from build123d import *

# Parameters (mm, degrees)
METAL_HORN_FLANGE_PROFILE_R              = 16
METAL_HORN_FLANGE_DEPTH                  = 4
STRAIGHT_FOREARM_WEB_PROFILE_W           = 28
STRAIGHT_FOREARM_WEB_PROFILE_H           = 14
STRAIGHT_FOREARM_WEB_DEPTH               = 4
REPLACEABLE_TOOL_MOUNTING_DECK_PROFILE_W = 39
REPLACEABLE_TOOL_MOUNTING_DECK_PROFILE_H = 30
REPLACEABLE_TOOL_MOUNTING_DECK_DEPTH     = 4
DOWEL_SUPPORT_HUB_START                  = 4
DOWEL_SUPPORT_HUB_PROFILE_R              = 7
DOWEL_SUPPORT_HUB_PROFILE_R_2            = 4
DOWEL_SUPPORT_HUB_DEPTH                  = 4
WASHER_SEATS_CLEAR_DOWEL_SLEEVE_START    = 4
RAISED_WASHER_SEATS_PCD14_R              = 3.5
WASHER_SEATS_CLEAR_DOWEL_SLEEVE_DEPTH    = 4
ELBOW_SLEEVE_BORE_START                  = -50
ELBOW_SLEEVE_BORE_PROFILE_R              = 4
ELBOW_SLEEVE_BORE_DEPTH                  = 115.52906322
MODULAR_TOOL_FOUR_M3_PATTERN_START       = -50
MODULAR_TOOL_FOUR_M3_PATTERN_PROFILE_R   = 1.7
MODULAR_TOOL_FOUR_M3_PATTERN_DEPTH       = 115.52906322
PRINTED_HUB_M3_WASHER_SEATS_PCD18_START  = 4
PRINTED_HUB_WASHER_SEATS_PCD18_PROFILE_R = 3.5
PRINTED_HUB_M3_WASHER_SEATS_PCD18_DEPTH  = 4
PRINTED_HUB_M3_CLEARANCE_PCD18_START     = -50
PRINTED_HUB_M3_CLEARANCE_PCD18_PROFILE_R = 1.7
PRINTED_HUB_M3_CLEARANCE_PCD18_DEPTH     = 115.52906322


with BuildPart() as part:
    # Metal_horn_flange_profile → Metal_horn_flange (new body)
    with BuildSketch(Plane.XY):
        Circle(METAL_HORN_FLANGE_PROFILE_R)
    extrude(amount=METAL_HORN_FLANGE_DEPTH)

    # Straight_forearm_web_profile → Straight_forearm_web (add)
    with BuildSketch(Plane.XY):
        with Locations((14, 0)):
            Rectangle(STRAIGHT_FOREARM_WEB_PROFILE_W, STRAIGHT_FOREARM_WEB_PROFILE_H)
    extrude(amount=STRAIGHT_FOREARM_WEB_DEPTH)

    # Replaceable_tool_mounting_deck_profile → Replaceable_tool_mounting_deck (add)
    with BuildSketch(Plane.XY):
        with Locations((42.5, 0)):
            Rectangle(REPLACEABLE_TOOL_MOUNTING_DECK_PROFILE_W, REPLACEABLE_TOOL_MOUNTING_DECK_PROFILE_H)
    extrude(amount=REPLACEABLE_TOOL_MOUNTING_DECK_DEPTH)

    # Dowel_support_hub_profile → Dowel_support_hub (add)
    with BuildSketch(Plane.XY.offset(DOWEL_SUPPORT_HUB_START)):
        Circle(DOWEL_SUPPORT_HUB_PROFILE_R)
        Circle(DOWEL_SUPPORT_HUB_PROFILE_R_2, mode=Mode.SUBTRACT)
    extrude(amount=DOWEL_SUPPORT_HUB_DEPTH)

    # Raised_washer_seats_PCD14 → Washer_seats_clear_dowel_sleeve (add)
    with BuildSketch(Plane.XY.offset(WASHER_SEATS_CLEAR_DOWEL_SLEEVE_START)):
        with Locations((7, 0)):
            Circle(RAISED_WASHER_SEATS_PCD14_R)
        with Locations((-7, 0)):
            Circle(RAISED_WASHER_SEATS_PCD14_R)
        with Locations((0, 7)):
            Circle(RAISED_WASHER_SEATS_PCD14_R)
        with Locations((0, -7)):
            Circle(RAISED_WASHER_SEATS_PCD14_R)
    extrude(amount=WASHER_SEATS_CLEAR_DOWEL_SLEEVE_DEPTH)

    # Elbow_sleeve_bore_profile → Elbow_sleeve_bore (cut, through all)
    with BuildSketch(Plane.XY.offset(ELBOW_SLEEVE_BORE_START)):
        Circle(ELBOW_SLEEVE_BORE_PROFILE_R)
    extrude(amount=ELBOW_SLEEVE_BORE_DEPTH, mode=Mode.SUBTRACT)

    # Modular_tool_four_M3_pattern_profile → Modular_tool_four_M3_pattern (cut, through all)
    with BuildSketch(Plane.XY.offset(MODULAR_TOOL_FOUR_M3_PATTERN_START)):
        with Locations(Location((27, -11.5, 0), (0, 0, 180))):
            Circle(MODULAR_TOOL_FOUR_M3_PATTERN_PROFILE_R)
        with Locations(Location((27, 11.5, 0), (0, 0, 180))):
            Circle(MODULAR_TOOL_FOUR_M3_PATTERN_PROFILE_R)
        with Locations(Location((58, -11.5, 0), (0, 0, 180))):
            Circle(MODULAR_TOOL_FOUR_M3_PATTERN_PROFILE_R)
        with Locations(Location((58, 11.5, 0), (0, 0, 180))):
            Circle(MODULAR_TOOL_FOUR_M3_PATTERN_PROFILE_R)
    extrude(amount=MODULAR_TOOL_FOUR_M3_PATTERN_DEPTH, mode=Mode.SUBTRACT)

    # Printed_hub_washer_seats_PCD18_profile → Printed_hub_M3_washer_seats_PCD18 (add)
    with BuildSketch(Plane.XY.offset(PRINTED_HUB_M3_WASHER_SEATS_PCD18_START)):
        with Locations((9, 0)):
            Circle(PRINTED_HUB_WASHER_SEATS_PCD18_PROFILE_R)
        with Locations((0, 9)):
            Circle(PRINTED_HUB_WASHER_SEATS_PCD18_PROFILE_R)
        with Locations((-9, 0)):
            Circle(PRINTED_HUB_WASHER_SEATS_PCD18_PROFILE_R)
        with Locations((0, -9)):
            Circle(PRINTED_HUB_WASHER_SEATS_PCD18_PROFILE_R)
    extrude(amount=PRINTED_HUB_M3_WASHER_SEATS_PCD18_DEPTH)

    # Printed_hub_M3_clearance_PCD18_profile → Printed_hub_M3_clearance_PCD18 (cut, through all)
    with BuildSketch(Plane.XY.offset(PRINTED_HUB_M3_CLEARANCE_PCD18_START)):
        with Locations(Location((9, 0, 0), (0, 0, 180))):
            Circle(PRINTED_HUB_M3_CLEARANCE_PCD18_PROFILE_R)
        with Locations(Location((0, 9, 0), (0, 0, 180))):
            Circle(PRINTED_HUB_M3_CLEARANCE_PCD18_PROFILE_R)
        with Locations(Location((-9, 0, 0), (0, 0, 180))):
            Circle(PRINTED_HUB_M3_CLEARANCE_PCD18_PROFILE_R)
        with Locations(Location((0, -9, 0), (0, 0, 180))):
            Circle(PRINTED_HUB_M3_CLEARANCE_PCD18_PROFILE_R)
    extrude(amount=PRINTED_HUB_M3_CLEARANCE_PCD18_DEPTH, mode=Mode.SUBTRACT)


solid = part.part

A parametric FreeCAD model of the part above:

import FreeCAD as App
import Part
import Sketcher

V = App.Vector


def add_polygon(sketch, points):
    """Adds a closed chain of lines whose ends are joined by coincident constraints."""
    first, n = sketch.GeometryCount, len(points)
    for a, b in zip(points, points[1:] + points[:1]):
        sketch.addGeometry(Part.LineSegment(App.Vector(*a, 0), App.Vector(*b, 0)), False)
    for i in range(n):
        sketch.addConstraint(Sketcher.Constraint("Coincident", first + i, 2, first + (i + 1) % n, 1))

doc = App.newDocument("Part")
body = doc.addObject("PartDesign::Body", "Body")

# Sketch on XY plane
sketch1 = doc.addObject("Sketcher::SketchObject", "Sketch")
body.addObject(sketch1)
sketch1.AttachmentSupport = (doc.XY_Plane, [""])
sketch1.MapMode = "FlatFace"
sketch1.addGeometry(Part.Circle(V(0, 0, 0), V(0, 0, 1), 16), False)
sketch1.addConstraint([
    Sketcher.Constraint("Coincident", 0, 3, -1, 1),
    Sketcher.Constraint("Diameter", 0, 32.0),
])
pad1 = doc.addObject("PartDesign::Pad", "Pad")
body.addObject(pad1)
pad1.Profile = sketch1
pad1.Length = 4

# Sketch on XY plane
sketch2 = doc.addObject("Sketcher::SketchObject", "Sketch001")
body.addObject(sketch2)
sketch2.AttachmentSupport = (doc.XY_Plane, [""])
sketch2.MapMode = "FlatFace"
add_polygon(sketch2, [(0, 7), (0, -7), (28, -7), (28, 7)])  # lines 0-3
sketch2.addConstraint([
    Sketcher.Constraint("Vertical", 0),
    Sketcher.Constraint("Horizontal", 1),
    Sketcher.Constraint("Vertical", 2),
    Sketcher.Constraint("Horizontal", 3),
    Sketcher.Constraint("Symmetric", 0, 2, 3, 2, -1, 1),
    Sketcher.Constraint("DistanceX", 1, 1, 1, 2, 28.0),
    Sketcher.Constraint("DistanceY", 0, 2, 0, 1, 14.0),
])
pad2 = doc.addObject("PartDesign::Pad", "Pad001")
body.addObject(pad2)
pad2.Profile = sketch2
pad2.Length = 4

# Sketch on XY plane
sketch3 = doc.addObject("Sketcher::SketchObject", "Sketch002")
body.addObject(sketch3)
sketch3.AttachmentSupport = (doc.XY_Plane, [""])
sketch3.MapMode = "FlatFace"
add_polygon(sketch3, [(23, 15), (23, -15), (62, -15), (62, 15)])  # lines 0-3
sketch3.addConstraint([
    Sketcher.Constraint("Vertical", 0),
    Sketcher.Constraint("Horizontal", 1),
    Sketcher.Constraint("Vertical", 2),
    Sketcher.Constraint("Horizontal", 3),
    Sketcher.Constraint("DistanceX", 1, 1, 1, 2, 39.0),
    Sketcher.Constraint("DistanceY", 0, 2, 0, 1, 30.0),
    Sketcher.Constraint("DistanceX", -1, 1, 0, 2, 23.0),
    Sketcher.Constraint("DistanceY", 0, 2, -1, 1, 15.0),
])
pad3 = doc.addObject("PartDesign::Pad", "Pad002")
body.addObject(pad3)
pad3.Profile = sketch3
pad3.Length = 4

# Sketch on XY plane
sketch4 = doc.addObject("Sketcher::SketchObject", "Sketch003")
body.addObject(sketch4)
sketch4.AttachmentSupport = (doc.XY_Plane, [""])
sketch4.MapMode = "FlatFace"
sketch4.AttachmentOffset = App.Placement(V(0, 0, 4), App.Rotation())
sketch4.addGeometry([
    Part.Circle(V(0, 0, 0), V(0, 0, 1), 7),
    Part.Circle(V(0, 0, 0), V(0, 0, 1), 4),
], False)
sketch4.addConstraint([
    Sketcher.Constraint("Coincident", 0, 3, -1, 1),
    Sketcher.Constraint("Coincident", 1, 3, -1, 1),
    Sketcher.Constraint("Diameter", 0, 14.0),
    Sketcher.Constraint("Diameter", 1, 8.0),
])
pad4 = doc.addObject("PartDesign::Pad", "Pad003")
body.addObject(pad4)
pad4.Profile = sketch4
pad4.Length = 4

# Sketch on XY plane
sketch5 = doc.addObject("Sketcher::SketchObject", "Sketch004")
body.addObject(sketch5)
sketch5.AttachmentSupport = (doc.XY_Plane, [""])
sketch5.MapMode = "FlatFace"
sketch5.AttachmentOffset = App.Placement(V(0, 0, 4), App.Rotation())
sketch5.addGeometry([
    Part.Circle(V(7, 0, 0), V(0, 0, 1), 3.5),
    Part.Circle(V(-7, 0, 0), V(0, 0, 1), 3.5),
    Part.Circle(V(0, 7, 0), V(0, 0, 1), 3.5),
    Part.Circle(V(0, -7, 0), V(0, 0, 1), 3.5),
], False)
sketch5.addConstraint([
    Sketcher.Constraint("Equal", 0, 1),
    Sketcher.Constraint("Equal", 1, 2),
    Sketcher.Constraint("Equal", 2, 3),
    Sketcher.Constraint("Symmetric", 0, 3, 1, 3, -1, 1),
    Sketcher.Constraint("Symmetric", 2, 3, 3, 3, -1, 1),
    Sketcher.Constraint("PointOnObject", 0, 3, -1),
    Sketcher.Constraint("PointOnObject", 2, 3, -2),
    Sketcher.Constraint("Diameter", 0, 7.0),
    Sketcher.Constraint("DistanceX", -1, 1, 0, 3, 7.0),
    Sketcher.Constraint("DistanceY", -1, 1, 2, 3, 7.0),
])
pad5 = doc.addObject("PartDesign::Pad", "Pad004")
body.addObject(pad5)
pad5.Profile = sketch5
pad5.Length = 4

# Sketch on XY plane
sketch6 = doc.addObject("Sketcher::SketchObject", "Sketch005")
body.addObject(sketch6)
sketch6.AttachmentSupport = (doc.XY_Plane, [""])
sketch6.MapMode = "FlatFace"
sketch6.AttachmentOffset = App.Placement(V(0, 0, -50), App.Rotation())
sketch6.addGeometry(Part.Circle(V(0, 0, 0), V(0, 0, 1), 4), False)
sketch6.addConstraint([
    Sketcher.Constraint("Coincident", 0, 3, -1, 1),
    Sketcher.Constraint("Diameter", 0, 8.0),
])
pocket1 = doc.addObject("PartDesign::Pocket", "Pocket")
body.addObject(pocket1)
pocket1.Profile = sketch6
pocket1.Type = "ThroughAll"
pocket1.Reversed = True

# Sketch on XY plane
sketch7 = doc.addObject("Sketcher::SketchObject", "Sketch006")
body.addObject(sketch7)
sketch7.AttachmentSupport = (doc.XY_Plane, [""])
sketch7.MapMode = "FlatFace"
sketch7.AttachmentOffset = App.Placement(V(0, 0, -50), App.Rotation())
sketch7.addGeometry([
    Part.Circle(V(27, -11.5, 0), V(0, 0, 1), 1.7),
    Part.Circle(V(27, 11.5, 0), V(0, 0, 1), 1.7),
    Part.Circle(V(58, -11.5, 0), V(0, 0, 1), 1.7),
    Part.Circle(V(58, 11.5, 0), V(0, 0, 1), 1.7),
], False)
sketch7.addConstraint([
    Sketcher.Constraint("Equal", 0, 1),
    Sketcher.Constraint("Equal", 1, 2),
    Sketcher.Constraint("Equal", 2, 3),
    Sketcher.Constraint("Symmetric", 0, 3, 1, 3, -1),
    Sketcher.Constraint("Symmetric", 2, 3, 3, 3, -1),
    Sketcher.Constraint("Horizontal", 0, 3, 2, 3),
    Sketcher.Constraint("Diameter", 0, 3.4),
    Sketcher.Constraint("DistanceX", -1, 1, 0, 3, 27.0),
    Sketcher.Constraint("DistanceX", -1, 1, 2, 3, 58.0),
    Sketcher.Constraint("DistanceY", 0, 3, 1, 3, 23.0),
])
pocket2 = doc.addObject("PartDesign::Pocket", "Pocket001")
body.addObject(pocket2)
pocket2.Profile = sketch7
pocket2.Type = "ThroughAll"
pocket2.Reversed = True

# Sketch on XY plane
sketch8 = doc.addObject("Sketcher::SketchObject", "Sketch007")
body.addObject(sketch8)
sketch8.AttachmentSupport = (doc.XY_Plane, [""])
sketch8.MapMode = "FlatFace"
sketch8.AttachmentOffset = App.Placement(V(0, 0, 4), App.Rotation())
sketch8.addGeometry([
    Part.Circle(V(9, 0, 0), V(0, 0, 1), 3.5),
    Part.Circle(V(0, 9, 0), V(0, 0, 1), 3.5),
    Part.Circle(V(-9, 0, 0), V(0, 0, 1), 3.5),
    Part.Circle(V(0, -9, 0), V(0, 0, 1), 3.5),
], False)
sketch8.addConstraint([
    Sketcher.Constraint("Equal", 0, 1),
    Sketcher.Constraint("Equal", 1, 2),
    Sketcher.Constraint("Equal", 2, 3),
    Sketcher.Constraint("Symmetric", 0, 3, 2, 3, -1, 1),
    Sketcher.Constraint("Symmetric", 1, 3, 3, 3, -1, 1),
    Sketcher.Constraint("PointOnObject", 0, 3, -1),
    Sketcher.Constraint("PointOnObject", 1, 3, -2),
    Sketcher.Constraint("Diameter", 0, 7.0),
    Sketcher.Constraint("DistanceX", -1, 1, 0, 3, 9.0),
    Sketcher.Constraint("DistanceY", -1, 1, 1, 3, 9.0),
])
pad6 = doc.addObject("PartDesign::Pad", "Pad005")
body.addObject(pad6)
pad6.Profile = sketch8
pad6.Length = 4

# Sketch on XY plane
sketch9 = doc.addObject("Sketcher::SketchObject", "Sketch008")
body.addObject(sketch9)
sketch9.AttachmentSupport = (doc.XY_Plane, [""])
sketch9.MapMode = "FlatFace"
sketch9.AttachmentOffset = App.Placement(V(0, 0, -50), App.Rotation())
sketch9.addGeometry([
    Part.Circle(V(9, 0, 0), V(0, 0, 1), 1.7),
    Part.Circle(V(0, 9, 0), V(0, 0, 1), 1.7),
    Part.Circle(V(-9, 0, 0), V(0, 0, 1), 1.7),
    Part.Circle(V(0, -9, 0), V(0, 0, 1), 1.7),
], False)
sketch9.addConstraint([
    Sketcher.Constraint("Equal", 0, 1),
    Sketcher.Constraint("Equal", 1, 2),
    Sketcher.Constraint("Equal", 2, 3),
    Sketcher.Constraint("Symmetric", 0, 3, 2, 3, -1, 1),
    Sketcher.Constraint("Symmetric", 1, 3, 3, 3, -1, 1),
    Sketcher.Constraint("PointOnObject", 0, 3, -1),
    Sketcher.Constraint("PointOnObject", 1, 3, -2),
    Sketcher.Constraint("Diameter", 0, 3.4),
    Sketcher.Constraint("DistanceX", -1, 1, 0, 3, 9.0),
    Sketcher.Constraint("DistanceY", -1, 1, 1, 3, 9.0),
])
pocket3 = doc.addObject("PartDesign::Pocket", "Pocket002")
body.addObject(pocket3)
pocket3.Profile = sketch9
pocket3.Type = "ThroughAll"
pocket3.Reversed = True

doc.recompute()
